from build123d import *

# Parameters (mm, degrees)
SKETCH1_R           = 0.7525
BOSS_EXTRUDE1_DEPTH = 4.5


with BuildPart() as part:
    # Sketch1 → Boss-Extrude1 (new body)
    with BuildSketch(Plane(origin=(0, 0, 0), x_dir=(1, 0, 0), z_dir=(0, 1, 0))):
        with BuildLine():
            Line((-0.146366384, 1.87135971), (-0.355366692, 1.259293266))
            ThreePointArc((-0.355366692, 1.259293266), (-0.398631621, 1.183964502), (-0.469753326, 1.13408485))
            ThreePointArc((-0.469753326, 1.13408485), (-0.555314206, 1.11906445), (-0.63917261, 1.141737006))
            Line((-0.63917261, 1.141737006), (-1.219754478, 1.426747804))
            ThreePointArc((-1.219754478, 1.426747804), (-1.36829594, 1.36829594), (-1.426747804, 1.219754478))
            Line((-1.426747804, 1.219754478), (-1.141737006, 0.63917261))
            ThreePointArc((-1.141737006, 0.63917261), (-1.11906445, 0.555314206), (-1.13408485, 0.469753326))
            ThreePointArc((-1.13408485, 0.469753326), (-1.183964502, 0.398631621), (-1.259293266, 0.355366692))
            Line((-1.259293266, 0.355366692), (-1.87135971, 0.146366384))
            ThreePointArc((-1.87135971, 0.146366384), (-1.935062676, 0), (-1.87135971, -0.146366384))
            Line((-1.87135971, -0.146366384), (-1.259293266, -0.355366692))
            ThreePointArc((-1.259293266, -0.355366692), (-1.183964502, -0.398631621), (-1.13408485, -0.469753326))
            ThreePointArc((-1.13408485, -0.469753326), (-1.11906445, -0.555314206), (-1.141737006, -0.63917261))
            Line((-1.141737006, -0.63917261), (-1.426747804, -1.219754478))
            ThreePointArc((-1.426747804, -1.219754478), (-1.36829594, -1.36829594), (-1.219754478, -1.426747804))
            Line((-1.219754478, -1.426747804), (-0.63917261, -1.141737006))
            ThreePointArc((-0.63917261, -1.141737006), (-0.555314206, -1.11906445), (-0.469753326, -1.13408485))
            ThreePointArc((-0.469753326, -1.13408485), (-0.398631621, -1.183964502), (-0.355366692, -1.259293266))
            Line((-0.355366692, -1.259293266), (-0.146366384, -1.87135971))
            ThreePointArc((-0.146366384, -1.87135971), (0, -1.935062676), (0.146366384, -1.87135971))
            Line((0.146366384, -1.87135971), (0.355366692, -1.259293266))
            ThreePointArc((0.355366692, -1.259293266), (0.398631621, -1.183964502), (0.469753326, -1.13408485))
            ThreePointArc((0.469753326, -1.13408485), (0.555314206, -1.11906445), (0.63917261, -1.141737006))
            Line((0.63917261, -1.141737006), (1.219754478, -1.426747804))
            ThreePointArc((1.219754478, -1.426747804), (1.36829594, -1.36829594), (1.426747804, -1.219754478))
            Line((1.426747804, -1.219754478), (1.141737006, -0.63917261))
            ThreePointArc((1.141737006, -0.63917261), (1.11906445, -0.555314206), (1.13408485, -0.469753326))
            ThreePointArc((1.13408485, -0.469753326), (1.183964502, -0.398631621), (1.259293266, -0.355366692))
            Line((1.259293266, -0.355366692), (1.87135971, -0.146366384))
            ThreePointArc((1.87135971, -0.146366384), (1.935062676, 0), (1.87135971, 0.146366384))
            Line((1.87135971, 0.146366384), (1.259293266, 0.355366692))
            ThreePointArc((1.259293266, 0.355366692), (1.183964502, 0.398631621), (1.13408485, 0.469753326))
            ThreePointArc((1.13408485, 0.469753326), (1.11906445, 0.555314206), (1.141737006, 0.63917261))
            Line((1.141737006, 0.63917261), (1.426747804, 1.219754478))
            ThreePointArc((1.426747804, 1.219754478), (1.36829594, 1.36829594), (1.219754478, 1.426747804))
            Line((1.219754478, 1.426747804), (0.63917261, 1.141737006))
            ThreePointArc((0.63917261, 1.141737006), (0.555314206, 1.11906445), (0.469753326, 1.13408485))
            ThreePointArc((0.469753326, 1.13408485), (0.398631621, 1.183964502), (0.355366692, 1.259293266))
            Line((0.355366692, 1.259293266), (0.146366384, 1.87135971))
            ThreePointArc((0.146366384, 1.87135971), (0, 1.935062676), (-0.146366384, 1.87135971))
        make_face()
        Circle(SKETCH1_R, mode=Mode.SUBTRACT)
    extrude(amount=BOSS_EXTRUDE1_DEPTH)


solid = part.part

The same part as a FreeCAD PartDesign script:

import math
import FreeCAD as App
import Part
import Sketcher
from FreeCAD import Vector
Q = App.Units.Quantity

doc = App.newDocument("Part")
body = doc.addObject("PartDesign::Body", "Body")

sketch1 = body.newObject("Sketcher::SketchObject", "Sketch")
sketch1.AttachmentSupport = (doc.getObject("XZ_Plane"), [""])
sketch1.MapMode = "FlatFace"
sketch1.addGeometry([
    Part.LineSegment(Vector(-0.146366, -1.87136, 0), Vector(-0.355367, -1.259293, 0)),
    Part.ArcOfCircle(Part.Circle(Vector(-0.54629, -1.318861, 0), Vector(0, 0, 1), 0.2), math.radians(17.327762), math.radians(67.5)),
    Part.ArcOfCircle(Part.Circle(Vector(-0.54629, -1.318861, 0), Vector(0, 0, 1), 0.2), math.radians(67.5), math.radians(117.672239)),
    Part.LineSegment(Vector(-0.639173, -1.141737, 0), Vector(-1.219754, -1.426748, 0)),
    Part.ArcOfCircle(Part.Circle(Vector(-1.226875, -1.226875, 0), Vector(0, 0, 1), 0.2), math.radians(177.959809), math.radians(272.040191)),
    Part.LineSegment(Vector(-1.426748, -1.219754, 0), Vector(-1.141737, -0.639173, 0)),
    Part.ArcOfCircle(Part.Circle(Vector(-1.318861, -0.54629, 0), Vector(0, 0, 1), 0.2), math.radians(-27.672239), math.radians(22.5)),
    Part.ArcOfCircle(Part.Circle(Vector(-1.318861, -0.54629, 0), Vector(0, 0, 1), 0.2), math.radians(22.5), math.radians(72.672238)),
    Part.LineSegment(Vector(-1.259293, -0.355367, 0), Vector(-1.87136, -0.146366, 0)),
    Part.ArcOfCircle(Part.Circle(Vector(-1.735063, 0, 0), Vector(0, 0, 1), 0.2), math.radians(132.959809), math.radians(227.040191)),
    Part.LineSegment(Vector(-1.87136, 0.146366, 0), Vector(-1.259293, 0.355367, 0)),
    Part.ArcOfCircle(Part.Circle(Vector(-1.318861, 0.54629, 0), Vector(0, 0, 1), 0.2), math.radians(-72.672238), math.radians(-22.5)),
    Part.ArcOfCircle(Part.Circle(Vector(-1.318861, 0.54629, 0), Vector(0, 0, 1), 0.2), math.radians(-22.5), math.radians(27.672239)),
    Part.LineSegment(Vector(-1.141737, 0.639173, 0), Vector(-1.426748, 1.219754, 0)),
    Part.ArcOfCircle(Part.Circle(Vector(-1.226875, 1.226875, 0), Vector(0, 0, 1), 0.2), math.radians(87.959809), math.radians(182.040191)),
    Part.LineSegment(Vector(-1.219754, 1.426748, 0), Vector(-0.639173, 1.141737, 0)),
    Part.ArcOfCircle(Part.Circle(Vector(-0.54629, 1.318861, 0), Vector(0, 0, 1), 0.2), math.radians(-117.672239), math.radians(-67.5)),
    Part.ArcOfCircle(Part.Circle(Vector(-0.54629, 1.318861, 0), Vector(0, 0, 1), 0.2), math.radians(-67.5), math.radians(-17.327762)),
    Part.LineSegment(Vector(-0.355367, 1.259293, 0), Vector(-0.146366, 1.87136, 0)),
    Part.ArcOfCircle(Part.Circle(Vector(0, 1.735063, 0), Vector(0, 0, 1), 0.2), math.radians(42.959809), math.radians(137.040191)),
    Part.LineSegment(Vector(0.146366, 1.87136, 0), Vector(0.355367, 1.259293, 0)),
    Part.ArcOfCircle(Part.Circle(Vector(0.54629, 1.318861, 0), Vector(0, 0, 1), 0.2), math.radians(-162.672238), math.radians(-112.5)),
    Part.ArcOfCircle(Part.Circle(Vector(0.54629, 1.318861, 0), Vector(0, 0, 1), 0.2), math.radians(-112.5), math.radians(-62.327761)),
    Part.LineSegment(Vector(0.639173, 1.141737, 0), Vector(1.219754, 1.426748, 0)),
    Part.ArcOfCircle(Part.Circle(Vector(1.226875, 1.226875, 0), Vector(0, 0, 1), 0.2), math.radians(-2.040191), math.radians(92.040191)),
    Part.LineSegment(Vector(1.426748, 1.219754, 0), Vector(1.141737, 0.639173, 0)),
    Part.ArcOfCircle(Part.Circle(Vector(1.318861, 0.54629, 0), Vector(0, 0, 1), 0.2), math.radians(152.327761), math.radians(202.5)),
    Part.ArcOfCircle(Part.Circle(Vector(1.318861, 0.54629, 0), Vector(0, 0, 1), 0.2), math.radians(-157.5), math.radians(-107.327762)),
    Part.LineSegment(Vector(1.259293, 0.355367, 0), Vector(1.87136, 0.146366, 0)),
    Part.ArcOfCircle(Part.Circle(Vector(1.735063, 0, 0), Vector(0, 0, 1), 0.2), math.radians(-47.040191), math.radians(47.040191)),
    Part.LineSegment(Vector(1.87136, -0.146366, 0), Vector(1.259293, -0.355367, 0)),
    Part.ArcOfCircle(Part.Circle(Vector(1.318861, -0.54629, 0), Vector(0, 0, 1), 0.2), math.radians(107.327762), math.radians(157.5)),
    Part.ArcOfCircle(Part.Circle(Vector(1.318861, -0.54629, 0), Vector(0, 0, 1), 0.2), math.radians(157.5), math.radians(207.672239)),
    Part.LineSegment(Vector(1.141737, -0.639173, 0), Vector(1.426748, -1.219754, 0)),
    Part.ArcOfCircle(Part.Circle(Vector(1.226875, -1.226875, 0), Vector(0, 0, 1), 0.2), math.radians(-92.040191), math.radians(2.040191)),
    Part.LineSegment(Vector(1.219754, -1.426748, 0), Vector(0.639173, -1.141737, 0)),
    Part.ArcOfCircle(Part.Circle(Vector(0.54629, -1.318861, 0), Vector(0, 0, 1), 0.2), math.radians(62.327761), math.radians(112.5)),
    Part.ArcOfCircle(Part.Circle(Vector(0.54629, -1.318861, 0), Vector(0, 0, 1), 0.2), math.radians(112.5), math.radians(162.672238)),
    Part.LineSegment(Vector(0.355367, -1.259293, 0), Vector(0.146366, -1.87136, 0)),
    Part.ArcOfCircle(Part.Circle(Vector(0, -1.735063, 0), Vector(0, 0, 1), 0.2), math.radians(-137.040191), math.radians(-42.959809)),
    Part.Circle(Vector(0, 0, 0), Vector(0, 0, 1), 0.7525),
], False)
sketch1.addConstraint([
    Sketcher.Constraint("Coincident", 0, 2, 1, 1),
    Sketcher.Constraint("Tangent", 1, 2, 2, 1),
    Sketcher.Constraint("Coincident", 2, 2, 3, 1),
    Sketcher.Constraint("Coincident", 3, 2, 4, 2),
    Sketcher.Constraint("Coincident", 4, 1, 5, 1),
    Sketcher.Constraint("Coincident", 5, 2, 6, 1),
    Sketcher.Constraint("Tangent", 6, 2, 7, 1),
    Sketcher.Constraint("Coincident", 7, 2, 8, 1),
    Sketcher.Constraint("Coincident", 8, 2, 9, 2),
    Sketcher.Constraint("Coincident", 9, 1, 10, 1),
    Sketcher.Constraint("Coincident", 10, 2, 11, 1),
    Sketcher.Constraint("Tangent", 11, 2, 12, 1),
    Sketcher.Constraint("Coincident", 12, 2, 13, 1),
    Sketcher.Constraint("Coincident", 13, 2, 14, 2),
    Sketcher.Constraint("Coincident", 14, 1, 15, 1),
    Sketcher.Constraint("Coincident", 15, 2, 16, 1),
    Sketcher.Constraint("Tangent", 16, 2, 17, 1),
    Sketcher.Constraint("Coincident", 17, 2, 18, 1),
    Sketcher.Constraint("Coincident", 18, 2, 19, 2),
    Sketcher.Constraint("Coincident", 19, 1, 20, 1),
    Sketcher.Constraint("Coincident", 20, 2, 21, 1),
    Sketcher.Constraint("Tangent", 21, 2, 22, 1),
    Sketcher.Constraint("Coincident", 22, 2, 23, 1),
    Sketcher.Constraint("Coincident", 23, 2, 24, 2),
    Sketcher.Constraint("Coincident", 24, 1, 25, 1),
    Sketcher.Constraint("Coincident", 25, 2, 26, 1),
    Sketcher.Constraint("Tangent", 26, 2, 27, 1),
    Sketcher.Constraint("Coincident", 27, 2, 28, 1),
    Sketcher.Constraint("Coincident", 28, 2, 29, 2),
    Sketcher.Constraint("Coincident", 29, 1, 30, 1),
    Sketcher.Constraint("Coincident", 30, 2, 31, 1),
    Sketcher.Constraint("Tangent", 31, 2, 32, 1),
    Sketcher.Constraint("Coincident", 32, 2, 33, 1),
    Sketcher.Constraint("Coincident", 33, 2, 34, 2),
    Sketcher.Constraint("Coincident", 34, 1, 35, 1),
    Sketcher.Constraint("Coincident", 35, 2, 36, 1),
    Sketcher.Constraint("Tangent", 36, 2, 37, 1),
    Sketcher.Constraint("Coincident", 37, 2, 38, 1),
    Sketcher.Constraint("Coincident", 38, 2, 39, 2),
    Sketcher.Constraint("Coincident", 39, 1, 0, 1),
    Sketcher.Constraint("Coincident", 40, 3, -1, 1),
    Sketcher.Constraint("Equal", 1, 2),
    Sketcher.Constraint("Equal", 2, 4),
    Sketcher.Constraint("Equal", 4, 6),
    Sketcher.Constraint("Equal", 6, 7),
    Sketcher.Constraint("Equal", 7, 9),
    Sketcher.Constraint("Equal", 9, 11),
    Sketcher.Constraint("Equal", 11, 12),
    Sketcher.Constraint("Equal", 12, 14),
    Sketcher.Constraint("Equal", 14, 16),
    Sketcher.Constraint("Equal", 16, 17),
    Sketcher.Constraint("Equal", 17, 19),
    Sketcher.Constraint("Equal", 19, 21),
    Sketcher.Constraint("Equal", 21, 22),
    Sketcher.Constraint("Equal", 22, 24),
    Sketcher.Constraint("Equal", 24, 26),
    Sketcher.Constraint("Equal", 26, 27),
    Sketcher.Constraint("Equal", 27, 29),
    Sketcher.Constraint("Equal", 29, 31),
    Sketcher.Constraint("Equal", 31, 32),
    Sketcher.Constraint("Equal", 32, 34),
    Sketcher.Constraint("Equal", 34, 36),
    Sketcher.Constraint("Equal", 36, 37),
    Sketcher.Constraint("Equal", 37, 39),
    Sketcher.Constraint("Symmetric", 1, 3, 21, 3, -1, 1),
    Sketcher.Constraint("Symmetric", 4, 3, 24, 3, -1, 1),
    Sketcher.Constraint("Symmetric", 6, 3, 26, 3, -1, 1),
    Sketcher.Constraint("Symmetric", 9, 3, 29, 3, -1, 1),
    Sketcher.Constraint("Symmetric", 11, 3, 31, 3, -1, 1),
    Sketcher.Constraint("Symmetric", 14, 3, 34, 3, -1, 1),
    Sketcher.Constraint("Symmetric", 16, 3, 36, 3, -1, 1),
    Sketcher.Constraint("Symmetric", 19, 3, 39, 3, -1, 1),
    Sketcher.Constraint("Symmetric", 16, 3, 21, 3, -2),
    Sketcher.Constraint("Symmetric", 14, 3, 24, 3, -2),
    Sketcher.Constraint("Symmetric", 11, 3, 26, 3, -2),
    Sketcher.Constraint("Symmetric", 18, 2, 19, 1, -2),
    Sketcher.Constraint("Symmetric", 9, 1, 28, 2, -2),
    Sketcher.Constraint("Perpendicular", 0, 10),
    Sketcher.Constraint("Perpendicular", 3, 13),
    Sketcher.Constraint("Perpendicular", 5, 15),
    Sketcher.Constraint("Perpendicular", 8, 18),
    Sketcher.Constraint("Perpendicular", 10, 20),
    Sketcher.Constraint("Perpendicular", 13, 23),
    Sketcher.Constraint("Perpendicular", 15, 25),
    Sketcher.Constraint("Perpendicular", 18, 28),
    Sketcher.Constraint("Perpendicular", 20, 30),
    Sketcher.Constraint("Perpendicular", 23, 33),
    Sketcher.Constraint("Perpendicular", 25, 35),
    Sketcher.Constraint("Perpendicular", 28, 38),
    Sketcher.Constraint("Horizontal", 17, 2, 20, 2),
    Sketcher.Constraint("Horizontal", 16, 2, 21, 2),
    Sketcher.Constraint("Horizontal", 15, 2, 22, 2),
    Sketcher.Constraint("Horizontal", 14, 1, 23, 2),
    Sketcher.Constraint("Horizontal", 13, 2, 24, 1),
    Sketcher.Constraint("Horizontal", 11, 2, 26, 2),
    Sketcher.Constraint("Horizontal", 8, 2, 29, 1),
    Sketcher.Constraint("Horizontal", 6, 2, 31, 2),
    Sketcher.Constraint("Horizontal", 5, 2, 32, 2),
    Sketcher.Constraint("Horizontal", 2, 2, 35, 2),
    Sketcher.Constraint("Horizontal", 1, 2, 36, 2),
    Sketcher.Constraint("Horizontal", 0, 2, 37, 2),
    Sketcher.Constraint("Vertical", 8, 2, 9, 1),
    Sketcher.Constraint("Vertical", 6, 2, 11, 2),
    Sketcher.Constraint("Vertical", 5, 2, 12, 2),
    Sketcher.Constraint("Vertical", 3, 2, 14, 1),
    Sketcher.Constraint("Vertical", 1, 2, 16, 2),
    Sketcher.Constraint("Vertical", 0, 2, 17, 2),
    Sketcher.Constraint("Equal", 0, 3),
    Sketcher.Constraint("Equal", 3, 5),
    Sketcher.Constraint("Equal", 5, 8),
    Sketcher.Constraint("Radius", 1, Q("0.2 mm")),
    Sketcher.Constraint("Diameter", 40, Q("1.505 mm")),
    Sketcher.Constraint("DistanceX", 1, 3, -1, 1, Q("0.54629 mm")),
    Sketcher.Constraint("DistanceY", 1, 3, -1, 1, Q("1.318861 mm")),
    Sketcher.Constraint("DistanceX", 6, 3, -1, 1, Q("1.318861 mm")),
    Sketcher.Constraint("DistanceY", 6, 3, -1, 1, Q("0.54629 mm")),
    Sketcher.Constraint("DistanceX", 8, 2, -1, 1, Q("1.87136 mm")),
    Sketcher.Constraint("DistanceY", -1, 1, 18, 2, Q("1.87136 mm")),
    Sketcher.Constraint("Distance", 0, Q("0.646766 mm")),
    Sketcher.Constraint("DistanceX", 4, 3, -1, 1, Q("1.226875 mm")),
    Sketcher.Constraint("DistanceY", 4, 3, -1, 1, Q("1.226875 mm")),
    Sketcher.Constraint("DistanceX", 9, 3, -1, 1, Q("1.735063 mm")),
    Sketcher.Constraint("DistanceX", 1, 2, -1, 1, Q("0.469753 mm")),
    Sketcher.Constraint("DistanceX", 2, 2, -1, 1, Q("0.639173 mm")),
    Sketcher.Constraint("DistanceX", 6, 2, -1, 1, Q("1.134085 mm")),
])
pad1 = body.newObject("PartDesign::Pad", "Pad")
pad1.Profile = sketch1
pad1.Length = 4.5
pad1.Reversed = True

doc.recompute()
